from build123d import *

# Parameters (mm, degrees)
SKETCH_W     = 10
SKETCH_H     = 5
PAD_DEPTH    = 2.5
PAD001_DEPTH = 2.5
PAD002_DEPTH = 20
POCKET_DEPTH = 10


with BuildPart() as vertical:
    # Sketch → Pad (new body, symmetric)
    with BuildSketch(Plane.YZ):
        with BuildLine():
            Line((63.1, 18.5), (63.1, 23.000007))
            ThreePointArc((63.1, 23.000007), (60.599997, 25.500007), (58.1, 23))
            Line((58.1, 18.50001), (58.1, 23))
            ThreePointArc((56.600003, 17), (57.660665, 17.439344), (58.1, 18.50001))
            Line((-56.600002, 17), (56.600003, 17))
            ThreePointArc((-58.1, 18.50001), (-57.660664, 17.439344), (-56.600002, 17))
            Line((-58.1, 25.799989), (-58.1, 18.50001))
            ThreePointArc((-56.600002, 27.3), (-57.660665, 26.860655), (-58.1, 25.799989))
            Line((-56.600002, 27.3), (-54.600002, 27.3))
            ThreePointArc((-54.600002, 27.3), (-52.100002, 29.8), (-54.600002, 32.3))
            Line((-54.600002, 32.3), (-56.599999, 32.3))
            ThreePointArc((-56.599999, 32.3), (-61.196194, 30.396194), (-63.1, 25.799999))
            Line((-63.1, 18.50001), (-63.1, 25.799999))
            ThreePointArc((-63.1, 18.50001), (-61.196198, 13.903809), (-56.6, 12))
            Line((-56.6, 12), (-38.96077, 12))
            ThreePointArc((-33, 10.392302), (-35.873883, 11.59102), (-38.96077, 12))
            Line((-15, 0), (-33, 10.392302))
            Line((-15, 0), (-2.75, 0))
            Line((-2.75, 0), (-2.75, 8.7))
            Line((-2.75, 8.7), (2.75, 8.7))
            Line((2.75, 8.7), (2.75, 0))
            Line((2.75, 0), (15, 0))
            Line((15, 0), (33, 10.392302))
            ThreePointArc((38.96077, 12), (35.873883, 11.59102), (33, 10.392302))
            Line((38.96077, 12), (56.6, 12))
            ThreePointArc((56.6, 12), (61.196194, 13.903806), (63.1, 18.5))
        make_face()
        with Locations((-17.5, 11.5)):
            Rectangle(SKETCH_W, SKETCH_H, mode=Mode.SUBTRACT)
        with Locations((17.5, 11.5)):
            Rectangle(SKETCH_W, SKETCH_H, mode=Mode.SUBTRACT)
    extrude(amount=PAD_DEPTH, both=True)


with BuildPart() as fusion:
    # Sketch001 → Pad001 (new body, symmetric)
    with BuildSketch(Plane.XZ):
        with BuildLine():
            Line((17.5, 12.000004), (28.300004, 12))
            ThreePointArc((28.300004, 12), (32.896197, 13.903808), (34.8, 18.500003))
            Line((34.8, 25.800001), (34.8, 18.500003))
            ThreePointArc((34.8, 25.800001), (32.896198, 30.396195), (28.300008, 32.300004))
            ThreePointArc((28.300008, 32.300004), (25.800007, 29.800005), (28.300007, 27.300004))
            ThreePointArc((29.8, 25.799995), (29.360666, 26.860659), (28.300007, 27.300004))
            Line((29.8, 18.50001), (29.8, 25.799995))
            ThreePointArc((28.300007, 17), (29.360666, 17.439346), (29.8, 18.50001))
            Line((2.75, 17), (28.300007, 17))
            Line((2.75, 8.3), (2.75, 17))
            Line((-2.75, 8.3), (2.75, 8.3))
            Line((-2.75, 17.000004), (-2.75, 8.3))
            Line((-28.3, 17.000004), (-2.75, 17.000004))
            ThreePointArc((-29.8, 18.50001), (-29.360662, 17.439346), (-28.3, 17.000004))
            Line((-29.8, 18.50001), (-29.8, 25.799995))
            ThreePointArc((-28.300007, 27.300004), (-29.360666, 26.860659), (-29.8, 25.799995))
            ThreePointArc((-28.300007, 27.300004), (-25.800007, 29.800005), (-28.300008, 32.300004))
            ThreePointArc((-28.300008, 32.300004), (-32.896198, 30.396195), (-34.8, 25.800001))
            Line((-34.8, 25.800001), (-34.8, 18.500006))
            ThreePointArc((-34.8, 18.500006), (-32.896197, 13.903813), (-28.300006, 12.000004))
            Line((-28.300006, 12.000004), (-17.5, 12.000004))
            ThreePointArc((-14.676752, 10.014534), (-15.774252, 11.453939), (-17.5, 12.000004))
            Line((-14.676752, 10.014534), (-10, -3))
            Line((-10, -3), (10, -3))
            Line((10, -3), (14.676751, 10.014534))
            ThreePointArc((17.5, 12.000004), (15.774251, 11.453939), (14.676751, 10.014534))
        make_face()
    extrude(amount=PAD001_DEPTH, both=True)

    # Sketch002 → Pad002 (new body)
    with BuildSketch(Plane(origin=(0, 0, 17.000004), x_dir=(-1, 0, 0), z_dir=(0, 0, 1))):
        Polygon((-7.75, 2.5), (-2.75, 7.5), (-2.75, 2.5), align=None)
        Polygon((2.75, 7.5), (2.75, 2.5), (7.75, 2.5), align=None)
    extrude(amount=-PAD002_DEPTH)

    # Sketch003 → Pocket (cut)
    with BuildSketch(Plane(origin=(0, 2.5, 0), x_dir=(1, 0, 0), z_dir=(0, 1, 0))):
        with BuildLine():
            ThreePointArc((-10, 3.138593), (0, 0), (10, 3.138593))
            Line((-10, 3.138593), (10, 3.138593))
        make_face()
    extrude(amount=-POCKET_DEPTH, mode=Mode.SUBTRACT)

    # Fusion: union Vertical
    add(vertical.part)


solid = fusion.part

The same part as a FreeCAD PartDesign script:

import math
import FreeCAD as App
import Part
import Sketcher

V = App.Vector
Q = App.Units.Quantity

doc = App.newDocument("Part")
params = doc.addObject("Spreadsheet::Sheet", "Params")
for row, (alias, value) in enumerate([
    ("sketch1_radius", "2.5 mm"),
    ("sketch1_radius2", "1.499999 mm"),
    ("sketch1_width", "2 mm"),
    ("sketch1_width2", "10 mm"),
    ("sketch1_height", "5 mm"),
    ("pad1_length", "5 mm"),
    ("sketch2_radius", "6.499999 mm"),
    ("sketch2_radius2", "2.5 mm"),
    ("sketch2_width", "20 mm"),
    ("sketch2_width2", "5.5 mm"),
    ("sketch2_height", "7.299998 mm"),
    ("pad2_length", "5 mm"),
    ("sketch3_width", "5 mm"),
    ("pad3_length", "20 mm"),
    ("sketch4_radius", "17.500002 mm"),
    ("sketch4_width", "20 mm"),
    ("pocket1_length", "10 mm"),
], start=1):
    params.set(f"A{row}", alias)
    params.set(f"B{row}", "=" + value)
    params.setAlias(f"B{row}", alias)

body = doc.addObject("PartDesign::Body", "Body")

# Sketch on YZ plane
sketch1 = body.newObject("Sketcher::SketchObject", "Sketch")
sketch1.AttachmentSupport = (doc.getObject("YZ_Plane"), [""])
sketch1.MapMode = "FlatFace"
sketch1.addGeometry([
    Part.LineSegment(V(63.1, 18.5, 0), V(63.1, 23, 0)),  # 0
    Part.ArcOfCircle(Part.Circle(V(60.6, 23, 0), V(0, 0, 1), 2.5), math.radians(0), math.radians(180)),  # 1
    Part.LineSegment(V(58.1, 23, 0), V(58.1, 18.5, 0)),  # 2
    Part.ArcOfCircle(Part.Circle(V(56.6, 18.5, 0), V(0, 0, 1), 1.5), math.radians(-90), math.radians(0)),  # 3
    Part.LineSegment(V(56.6, 17, 0), V(-56.6, 17, 0)),  # 4
    Part.ArcOfCircle(Part.Circle(V(-56.6, 18.5, 0), V(0, 0, 1), 1.5), math.radians(180), math.radians(270)),  # 5
    Part.LineSegment(V(-58.1, 18.5, 0), V(-58.1, 25.8, 0)),  # 6
    Part.ArcOfCircle(Part.Circle(V(-56.6, 25.8, 0), V(0, 0, 1), 1.5), math.radians(90), math.radians(180)),  # 7
    Part.LineSegment(V(-56.6, 27.3, 0), V(-54.6, 27.3, 0)),  # 8
    Part.ArcOfCircle(Part.Circle(V(-54.6, 29.8, 0), V(0, 0, 1), 2.5), math.radians(-90), math.radians(90)),  # 9
    Part.LineSegment(V(-54.6, 32.3, 0), V(-56.6, 32.3, 0)),  # 10
    Part.ArcOfCircle(Part.Circle(V(-56.6, 25.8, 0), V(0, 0, 1), 6.5), math.radians(90), math.radians(180)),  # 11
    Part.LineSegment(V(-63.1, 25.8, 0), V(-63.1, 18.5, 0)),  # 12
    Part.ArcOfCircle(Part.Circle(V(-56.6, 18.5, 0), V(0, 0, 1), 6.5), math.radians(180), math.radians(270)),  # 13
    Part.LineSegment(V(-56.6, 12, 0), V(-39, 12, 0)),  # 14
    Part.ArcOfCircle(Part.Circle(V(-39, 0.1, 0), V(0, 0, 1), 11.9), math.radians(60), math.radians(90)),  # 15
    Part.LineSegment(V(-33, 10.4, 0), V(-15, 0, 0)),  # 16
    Part.LineSegment(V(-15, 0, 0), V(-2.8, 0, 0)),  # 17
    Part.LineSegment(V(-2.8, 0, 0), V(-2.8, 8.7, 0)),  # 18
    Part.LineSegment(V(-2.8, 8.7, 0), V(2.8, 8.7, 0)),  # 19
    Part.LineSegment(V(2.8, 8.7, 0), V(2.8, 0, 0)),  # 20
    Part.LineSegment(V(2.8, 0, 0), V(15, 0, 0)),  # 21
    Part.LineSegment(V(15, 0, 0), V(33, 10.4, 0)),  # 22
    Part.ArcOfCircle(Part.Circle(V(39, 0.1, 0), V(0, 0, 1), 11.9), math.radians(90), math.radians(120)),  # 23
    Part.LineSegment(V(39, 12, 0), V(56.6, 12, 0)),  # 24
    Part.ArcOfCircle(Part.Circle(V(56.6, 18.5, 0), V(0, 0, 1), 6.5), math.radians(-90), math.radians(0)),  # 25
    Part.LineSegment(V(-12.5, 9, 0), V(-22.5, 9, 0)),  # 26
    Part.LineSegment(V(-22.5, 9, 0), V(-22.5, 14, 0)),  # 27
    Part.LineSegment(V(-22.5, 14, 0), V(-12.5, 14, 0)),  # 28
    Part.LineSegment(V(-12.5, 14, 0), V(-12.5, 9, 0)),  # 29
    Part.LineSegment(V(22.5, 9, 0), V(12.5, 9, 0)),  # 30
    Part.LineSegment(V(12.5, 9, 0), V(12.5, 14, 0)),  # 31
    Part.LineSegment(V(12.5, 14, 0), V(22.5, 14, 0)),  # 32
    Part.LineSegment(V(22.5, 14, 0), V(22.5, 9, 0)),  # 33
], False)
sketch1.addConstraint([
    Sketcher.Constraint("Tangent", 0, 2, 1, 1),
    Sketcher.Constraint("Coincident", 1, 2, 2, 1),
    Sketcher.Constraint("Coincident", 2, 2, 3, 2),
    Sketcher.Constraint("Tangent", 3, 1, 4, 1),
    Sketcher.Constraint("Tangent", 4, 2, 5, 2),
    Sketcher.Constraint("Coincident", 5, 1, 6, 1),
    Sketcher.Constraint("Coincident", 6, 2, 7, 2),
    Sketcher.Constraint("Tangent", 7, 1, 8, 1),
    Sketcher.Constraint("Tangent", 8, 2, 9, 1),
    Sketcher.Constraint("Tangent", 9, 2, 10, 1),
    Sketcher.Constraint("Tangent", 10, 2, 11, 1),
    Sketcher.Constraint("Tangent", 11, 2, 12, 1),
    Sketcher.Constraint("Tangent", 12, 2, 13, 1),
    Sketcher.Constraint("Tangent", 13, 2, 14, 1),
    Sketcher.Constraint("Tangent", 14, 2, 15, 2),
    Sketcher.Constraint("Coincident", 15, 1, 16, 1),
    Sketcher.Constraint("Coincident", 16, 2, 17, 1),
    Sketcher.Constraint("Coincident", 17, 2, 18, 1),
    Sketcher.Constraint("Coincident", 18, 2, 19, 1),
    Sketcher.Constraint("Coincident", 19, 2, 20, 1),
    Sketcher.Constraint("Coincident", 20, 2, 21, 1),
    Sketcher.Constraint("Coincident", 21, 2, 22, 1),
    Sketcher.Constraint("Coincident", 22, 2, 23, 2),
    Sketcher.Constraint("Tangent", 23, 1, 24, 1),
    Sketcher.Constraint("Tangent", 24, 2, 25, 1),
    Sketcher.Constraint("Tangent", 25, 2, 0, 1),
    Sketcher.Constraint("Coincident", 26, 2, 27, 1),
    Sketcher.Constraint("Coincident", 27, 2, 28, 1),
    Sketcher.Constraint("Coincident", 28, 2, 29, 1),
    Sketcher.Constraint("Coincident", 29, 2, 26, 1),
    Sketcher.Constraint("Coincident", 30, 2, 31, 1),
    Sketcher.Constraint("Coincident", 31, 2, 32, 1),
    Sketcher.Constraint("Coincident", 32, 2, 33, 1),
    Sketcher.Constraint("Coincident", 33, 2, 30, 1),
    Sketcher.Constraint("Vertical", 0),
    Sketcher.Constraint("Vertical", 2),
    Sketcher.Constraint("Horizontal", 4),
    Sketcher.Constraint("Vertical", 6),
    Sketcher.Constraint("Horizontal", 8),
    Sketcher.Constraint("Horizontal", 10),
    Sketcher.Constraint("Vertical", 12),
    Sketcher.Constraint("Horizontal", 14),
    Sketcher.Constraint("Horizontal", 17),
    Sketcher.Constraint("Vertical", 18),
    Sketcher.Constraint("Horizontal", 19),
    Sketcher.Constraint("Vertical", 20),
    Sketcher.Constraint("Horizontal", 21),
    Sketcher.Constraint("Horizontal", 24),
    Sketcher.Constraint("Horizontal", 26),
    Sketcher.Constraint("Vertical", 27),
    Sketcher.Constraint("Horizontal", 28),
    Sketcher.Constraint("Vertical", 29),
    Sketcher.Constraint("Horizontal", 30),
    Sketcher.Constraint("Vertical", 31),
    Sketcher.Constraint("Horizontal", 32),
    Sketcher.Constraint("Vertical", 33),
    Sketcher.Constraint("Coincident", 11, 3, 7, 3),
    Sketcher.Constraint("Coincident", 13, 3, 5, 3),
    Sketcher.Constraint("Coincident", 25, 3, 3, 3),
    Sketcher.Constraint("Equal", 3, 5),
    Sketcher.Constraint("Equal", 5, 7),
    Sketcher.Constraint("Equal", 1, 9),
    Sketcher.Constraint("Equal", 15, 23),
    Sketcher.Constraint("Symmetric", 17, 2, 20, 2, -1, 1),
    Sketcher.Constraint("Symmetric", 2, 2, 5, 1, -2),
    Sketcher.Constraint("Symmetric", 16, 2, 21, 2, -2),
    Sketcher.Constraint("Symmetric", 15, 1, 22, 2, -2),
    Sketcher.Constraint("Symmetric", 29, 2, 30, 2, -2),
    Sketcher.Constraint("Symmetric", 27, 2, 32, 2, -2),
    Sketcher.Constraint("Horizontal", 5, 1, 12, 2),
    Sketcher.Constraint("Radius", 1, Q("2.5 mm")),
    Sketcher.Constraint("Radius", 3, Q("1.499999 mm")),
    Sketcher.Constraint("DistanceX", 8, 1, 8, 2, Q("2 mm")),
    Sketcher.Constraint("DistanceX", 26, 2, 26, 1, Q("10 mm")),
    Sketcher.Constraint("DistanceY", 27, 1, 27, 2, Q("5 mm")),
    Sketcher.Constraint("Angle", 16, Q("-29.999993 deg")),
    Sketcher.Constraint("DistanceX", 19, 1, 19, 2, Q("5.5 mm")),
    Sketcher.Constraint("DistanceY", 18, 1, 18, 2, Q("8.7 mm")),
    Sketcher.Constraint("DistanceY", -1, 1, 1, 2, Q("23 mm")),
    Sketcher.Constraint("DistanceY", -1, 1, 3, 1, Q("17 mm")),
    Sketcher.Constraint("DistanceX", 15, 1, -1, 1, Q("33 mm")),
    Sketcher.Constraint("DistanceX", 16, 2, -1, 1, Q("15 mm")),
    Sketcher.Constraint("DistanceY", -1, 1, 26, 2, Q("9 mm")),
    Sketcher.Constraint("DistanceX", -1, 1, 1, 3, Q("60.6 mm")),
    Sketcher.Constraint("DistanceY", -1, 1, 7, 3, Q("25.799999 mm")),
    Sketcher.Constraint("DistanceX", 26, 2, -1, 1, Q("22.5 mm")),
    Sketcher.Constraint("Radius", 15, Q("11.854057 mm")),
    Sketcher.Constraint("DistanceY", 6, 1, 6, 2, Q("7.299979 mm")),
    Sketcher.Constraint("DistanceY", 0, 1, 0, 2, Q("4.500007 mm")),
])
sketch1.setExpression("Constraints[70]", "Params.sketch1_radius")
sketch1.setExpression("Constraints[71]", "Params.sketch1_radius2")
sketch1.setExpression("Constraints[72]", "Params.sketch1_width")
sketch1.setExpression("Constraints[73]", "Params.sketch1_width2")
sketch1.setExpression("Constraints[74]", "Params.sketch1_height")
pad1 = body.newObject("PartDesign::Pad", "Pad")
pad1.Profile = sketch1
pad1.setExpression("Length", "Params.pad1_length")
pad1.Midplane = True
body2 = doc.addObject("PartDesign::Body", "Body001")
body2.AllowCompound = True

# Sketch on XZ plane
sketch2 = body2.newObject("Sketcher::SketchObject", "Sketch001")
sketch2.AttachmentSupport = (doc.getObject("XZ_Plane001"), [""])
sketch2.MapMode = "FlatFace"
sketch2.addGeometry([
    Part.LineSegment(V(17.5, 12, 0), V(28.3, 12, 0)),  # 0
    Part.ArcOfCircle(Part.Circle(V(28.3, 18.5, 0), V(0, 0, 1), 6.5), math.radians(-90), math.radians(0)),  # 1
    Part.LineSegment(V(34.8, 18.5, 0), V(34.8, 25.8, 0)),  # 2
    Part.ArcOfCircle(Part.Circle(V(28.3, 25.8, 0), V(0, 0, 1), 6.5), math.radians(0), math.radians(90)),  # 3
    Part.ArcOfCircle(Part.Circle(V(28.3, 29.8, 0), V(0, 0, 1), 2.5), math.radians(90), math.radians(270)),  # 4
    Part.ArcOfCircle(Part.Circle(V(28.3, 25.8, 0), V(0, 0, 1), 1.5), math.radians(0), math.radians(90)),  # 5
    Part.LineSegment(V(29.8, 25.8, 0), V(29.8, 18.5, 0)),  # 6
    Part.ArcOfCircle(Part.Circle(V(28.3, 18.5, 0), V(0, 0, 1), 1.5), math.radians(-90), math.radians(0)),  # 7
    Part.LineSegment(V(28.3, 17, 0), V(2.8, 17, 0)),  # 8
    Part.LineSegment(V(2.8, 17, 0), V(2.8, 8.3, 0)),  # 9
    Part.LineSegment(V(2.8, 8.3, 0), V(-2.8, 8.3, 0)),  # 10
    Part.LineSegment(V(-2.8, 8.3, 0), V(-2.8, 17, 0)),  # 11
    Part.LineSegment(V(-2.8, 17, 0), V(-28.3, 17, 0)),  # 12
    Part.ArcOfCircle(Part.Circle(V(-28.3, 18.5, 0), V(0, 0, 1), 1.5), math.radians(180), math.radians(270)),  # 13
    Part.LineSegment(V(-29.8, 18.5, 0), V(-29.8, 25.8, 0)),  # 14
    Part.ArcOfCircle(Part.Circle(V(-28.3, 25.8, 0), V(0, 0, 1), 1.5), math.radians(90), math.radians(180)),  # 15
    Part.ArcOfCircle(Part.Circle(V(-28.3, 29.8, 0), V(0, 0, 1), 2.5), math.radians(-90), math.radians(90)),  # 16
    Part.ArcOfCircle(Part.Circle(V(-28.3, 25.8, 0), V(0, 0, 1), 6.5), math.radians(90), math.radians(180)),  # 17
    Part.LineSegment(V(-34.8, 25.8, 0), V(-34.8, 18.5, 0)),  # 18
    Part.ArcOfCircle(Part.Circle(V(-28.3, 18.5, 0), V(0, 0, 1), 6.5), math.radians(180), math.radians(270)),  # 19
    Part.LineSegment(V(-28.3, 12, 0), V(-17.5, 12, 0)),  # 20
    Part.ArcOfCircle(Part.Circle(V(-17.5, 9, 0), V(0, 0, 1), 3), math.radians(20), math.radians(90)),  # 21
    Part.LineSegment(V(-14.7, 10, 0), V(-10, -3, 0)),  # 22
    Part.LineSegment(V(-10, -3, 0), V(10, -3, 0)),  # 23
    Part.LineSegment(V(10, -3, 0), V(14.7, 10, 0)),  # 24
    Part.ArcOfCircle(Part.Circle(V(17.5, 9, 0), V(0, 0, 1), 3), math.radians(90), math.radians(160)),  # 25
], False)
sketch2.addConstraint([
    Sketcher.Constraint("Tangent", 0, 2, 1, 1),
    Sketcher.Constraint("Tangent", 1, 2, 2, 1),
    Sketcher.Constraint("Tangent", 2, 2, 3, 1),
    Sketcher.Constraint("Tangent", 3, 2, 4, 1),
    Sketcher.Constraint("Coincident", 4, 2, 5, 2),
    Sketcher.Constraint("Coincident", 5, 1, 6, 1),
    Sketcher.Constraint("Coincident", 6, 2, 7, 2),
    Sketcher.Constraint("Coincident", 7, 1, 8, 1),
    Sketcher.Constraint("Coincident", 8, 2, 9, 1),
    Sketcher.Constraint("Coincident", 9, 2, 10, 1),
    Sketcher.Constraint("Coincident", 10, 2, 11, 1),
    Sketcher.Constraint("Coincident", 11, 2, 12, 1),
    Sketcher.Constraint("Tangent", 12, 2, 13, 2),
    Sketcher.Constraint("Coincident", 13, 1, 14, 1),
    Sketcher.Constraint("Coincident", 14, 2, 15, 2),
    Sketcher.Constraint("Coincident", 15, 1, 16, 1),
    Sketcher.Constraint("Tangent", 16, 2, 17, 1),
    Sketcher.Constraint("Tangent", 17, 2, 18, 1),
    Sketcher.Constraint("Tangent", 18, 2, 19, 1),
    Sketcher.Constraint("Tangent", 19, 2, 20, 1),
    Sketcher.Constraint("Tangent", 20, 2, 21, 2),
    Sketcher.Constraint("Tangent", 21, 1, 22, 1),
    Sketcher.Constraint("Coincident", 22, 2, 23, 1),
    Sketcher.Constraint("Coincident", 23, 2, 24, 1),
    Sketcher.Constraint("Tangent", 24, 2, 25, 2),
    Sketcher.Constraint("Tangent", 25, 1, 0, 1),
    Sketcher.Constraint("Vertical", 2),
    Sketcher.Constraint("Vertical", 6),
    Sketcher.Constraint("Horizontal", 8),
    Sketcher.Constraint("Vertical", 9),
    Sketcher.Constraint("Horizontal", 10),
    Sketcher.Constraint("Vertical", 11),
    Sketcher.Constraint("Horizontal", 12),
    Sketcher.Constraint("Vertical", 14),
    Sketcher.Constraint("Vertical", 18),
    Sketcher.Constraint("Horizontal", 20),
    Sketcher.Constraint("Horizontal", 23),
    Sketcher.Constraint("Coincident", 5, 3, 3, 3),
    Sketcher.Constraint("Coincident", 7, 3, 1, 3),
    Sketcher.Constraint("Coincident", 17, 3, 15, 3),
    Sketcher.Constraint("Coincident", 19, 3, 13, 3),
    Sketcher.Constraint("Equal", 1, 3),
    Sketcher.Constraint("Equal", 7, 13),
    Sketcher.Constraint("Equal", 13, 15),
    Sketcher.Constraint("Equal", 4, 16),
    Sketcher.Constraint("Equal", 21, 25),
    Sketcher.Constraint("Symmetric", 1, 3, 13, 3, -2),
    Sketcher.Constraint("Symmetric", 4, 3, 16, 3, -2),
    Sketcher.Constraint("Symmetric", 21, 3, 25, 3, -2),
    Sketcher.Constraint("Horizontal", 6, 2, 13, 1),
    Sketcher.Constraint("Horizontal", 5, 1, 14, 2),
    Sketcher.Constraint("Horizontal", 21, 1, 24, 2),
    Sketcher.Constraint("Vertical", 4, 3, 3, 2),
    Sketcher.Constraint("Vertical", 3, 2, 4, 2),
    Sketcher.Constraint("Vertical", 4, 2, 7, 1),
    Sketcher.Constraint("Vertical", 16, 3, 15, 1),
    Sketcher.Constraint("Radius", 1, Q("6.499999 mm")),
    Sketcher.Constraint("Radius", 4, Q("2.5 mm")),
    Sketcher.Constraint("DistanceX", 23, 1, 23, 2, Q("20 mm")),
    Sketcher.Constraint("DistanceX", 10, 2, 10, 1, Q("5.5 mm")),
    Sketcher.Constraint("DistanceY", 2, 1, 2, 2, Q("7.299998 mm")),
    Sketcher.Constraint("DistanceY", 9, 2, 9, 1, Q("8.7 mm")),
    Sketcher.Constraint("DistanceY", -1, 1, 0, 2, Q("12 mm")),
    Sketcher.Constraint("DistanceY", 22, 2, -1, 1, Q("3 mm")),
    Sketcher.Constraint("DistanceX", 12, 2, 12, 1, Q("25.55 mm")),
    Sketcher.Constraint("DistanceX", -1, 1, 1, 3, Q("28.300001 mm")),
    Sketcher.Constraint("DistanceX", 21, 3, -1, 1, Q("17.499998 mm")),
    Sketcher.Constraint("DistanceY", 21, 3, 13, 3, Q("9.499998 mm")),
    Sketcher.Constraint("DistanceY", 6, 2, 6, 1, Q("7.299985 mm")),
    Sketcher.Constraint("DistanceY", -1, 1, 6, 2, Q("18.50001 mm")),
])
sketch2.setExpression("Constraints[56]", "Params.sketch2_radius")
sketch2.setExpression("Constraints[57]", "Params.sketch2_radius2")
sketch2.setExpression("Constraints[58]", "Params.sketch2_width")
sketch2.setExpression("Constraints[59]", "Params.sketch2_width2")
sketch2.setExpression("Constraints[60]", "Params.sketch2_height")
pad2 = body2.newObject("PartDesign::Pad", "Pad001")
pad2.Profile = sketch2
pad2.setExpression("Length", "Params.pad2_length")
pad2.Midplane = True

# Sketch on XY plane
sketch3 = body2.newObject("Sketcher::SketchObject", "Sketch002")
sketch3.AttachmentSupport = (doc.getObject("XY_Plane001"), [""])
sketch3.MapMode = "FlatFace"
sketch3.AttachmentOffset = App.Placement(V(0, 0, 17.000004), App.Rotation())
sketch3.addGeometry([
    Part.LineSegment(V(3, -8, 0), V(8, -2, 0)),  # 0
    Part.LineSegment(V(8, -2, 0), V(3, -2, 0)),  # 1
    Part.LineSegment(V(3, -2, 0), V(3, -8, 0)),  # 2
    Part.LineSegment(V(-3, -8, 0), V(-3, -2, 0)),  # 3
    Part.LineSegment(V(-3, -2, 0), V(-8, -2, 0)),  # 4
    Part.LineSegment(V(-8, -2, 0), V(-3, -8, 0)),  # 5
], False)
sketch3.addConstraint([
    Sketcher.Constraint("Coincident", 0, 2, 1, 1),
    Sketcher.Constraint("Coincident", 1, 2, 2, 1),
    Sketcher.Constraint("Coincident", 2, 2, 0, 1),
    Sketcher.Constraint("Coincident", 3, 2, 4, 1),
    Sketcher.Constraint("Coincident", 4, 2, 5, 1),
    Sketcher.Constraint("Coincident", 5, 2, 3, 1),
    Sketcher.Constraint("Horizontal", 1),
    Sketcher.Constraint("Vertical", 2),
    Sketcher.Constraint("Vertical", 3),
    Sketcher.Constraint("Horizontal", 4),
    Sketcher.Constraint("Symmetric", 1, 2, 3, 2, -2),
    Sketcher.Constraint("Perpendicular", 0, 5),
    Sketcher.Constraint("Horizontal", 2, 2, 5, 2),
    Sketcher.Constraint("Equal", 1, 4),
    Sketcher.Constraint("DistanceX", 1, 2, 1, 1, Q("5 mm")),
    Sketcher.Constraint("DistanceY", 0, 2, -1, 1, Q("2.5 mm")),
    Sketcher.Constraint("DistanceX", 3, 2, 1, 2, Q("5.5 mm")),
])
sketch3.setExpression("Constraints[14]", "Params.sketch3_width")
pad3 = body2.newObject("PartDesign::Pad", "Pad002")
pad3.Profile = sketch3
pad3.setExpression("Length", "Params.pad3_length")
pad3.Reversed = True

# Sketch on XZ plane
sketch4 = body2.newObject("Sketcher::SketchObject", "Sketch003")
sketch4.AttachmentSupport = (doc.getObject("XZ_Plane001"), [""])
sketch4.MapMode = "FlatFace"
sketch4.AttachmentOffset = App.Placement(V(0, 0, -2.5), App.Rotation())
sketch4.addGeometry([
    Part.ArcOfCircle(Part.Circle(V(0, -18, 0), V(0, 0, 1), 18), math.radians(55), math.radians(125)),
    Part.LineSegment(V(10, -3, 0), V(-10, -3, 0)),
], False)
sketch4.addConstraint([
    Sketcher.Constraint("Coincident", 0, 1, 1, 1),
    Sketcher.Constraint("Coincident", 1, 2, 0, 2),
    Sketcher.Constraint("Horizontal", 1),
    Sketcher.Constraint("PointOnObject", 0, 3, -2),
    Sketcher.Constraint("Radius", 0, Q("17.500002 mm")),
    Sketcher.Constraint("DistanceX", 1, 2, 1, 1, Q("20 mm")),
    Sketcher.Constraint("DistanceY", 0, 3, -1, 1, Q("17.500002 mm")),
])
sketch4.setExpression("Constraints[4]", "Params.sketch4_radius")
sketch4.setExpression("Constraints[5]", "Params.sketch4_width")
pocket1 = body2.newObject("PartDesign::Pocket", "Pocket")
pocket1.Profile = sketch4
pocket1.setExpression("Length", "Params.pocket1_length")
pocket1.Reversed = True
doc.recompute()

boolean = body2.newObject("PartDesign::Boolean", "Boolean")
boolean.Type = "Fuse"
boolean.addObjects([body])

doc.recompute()
